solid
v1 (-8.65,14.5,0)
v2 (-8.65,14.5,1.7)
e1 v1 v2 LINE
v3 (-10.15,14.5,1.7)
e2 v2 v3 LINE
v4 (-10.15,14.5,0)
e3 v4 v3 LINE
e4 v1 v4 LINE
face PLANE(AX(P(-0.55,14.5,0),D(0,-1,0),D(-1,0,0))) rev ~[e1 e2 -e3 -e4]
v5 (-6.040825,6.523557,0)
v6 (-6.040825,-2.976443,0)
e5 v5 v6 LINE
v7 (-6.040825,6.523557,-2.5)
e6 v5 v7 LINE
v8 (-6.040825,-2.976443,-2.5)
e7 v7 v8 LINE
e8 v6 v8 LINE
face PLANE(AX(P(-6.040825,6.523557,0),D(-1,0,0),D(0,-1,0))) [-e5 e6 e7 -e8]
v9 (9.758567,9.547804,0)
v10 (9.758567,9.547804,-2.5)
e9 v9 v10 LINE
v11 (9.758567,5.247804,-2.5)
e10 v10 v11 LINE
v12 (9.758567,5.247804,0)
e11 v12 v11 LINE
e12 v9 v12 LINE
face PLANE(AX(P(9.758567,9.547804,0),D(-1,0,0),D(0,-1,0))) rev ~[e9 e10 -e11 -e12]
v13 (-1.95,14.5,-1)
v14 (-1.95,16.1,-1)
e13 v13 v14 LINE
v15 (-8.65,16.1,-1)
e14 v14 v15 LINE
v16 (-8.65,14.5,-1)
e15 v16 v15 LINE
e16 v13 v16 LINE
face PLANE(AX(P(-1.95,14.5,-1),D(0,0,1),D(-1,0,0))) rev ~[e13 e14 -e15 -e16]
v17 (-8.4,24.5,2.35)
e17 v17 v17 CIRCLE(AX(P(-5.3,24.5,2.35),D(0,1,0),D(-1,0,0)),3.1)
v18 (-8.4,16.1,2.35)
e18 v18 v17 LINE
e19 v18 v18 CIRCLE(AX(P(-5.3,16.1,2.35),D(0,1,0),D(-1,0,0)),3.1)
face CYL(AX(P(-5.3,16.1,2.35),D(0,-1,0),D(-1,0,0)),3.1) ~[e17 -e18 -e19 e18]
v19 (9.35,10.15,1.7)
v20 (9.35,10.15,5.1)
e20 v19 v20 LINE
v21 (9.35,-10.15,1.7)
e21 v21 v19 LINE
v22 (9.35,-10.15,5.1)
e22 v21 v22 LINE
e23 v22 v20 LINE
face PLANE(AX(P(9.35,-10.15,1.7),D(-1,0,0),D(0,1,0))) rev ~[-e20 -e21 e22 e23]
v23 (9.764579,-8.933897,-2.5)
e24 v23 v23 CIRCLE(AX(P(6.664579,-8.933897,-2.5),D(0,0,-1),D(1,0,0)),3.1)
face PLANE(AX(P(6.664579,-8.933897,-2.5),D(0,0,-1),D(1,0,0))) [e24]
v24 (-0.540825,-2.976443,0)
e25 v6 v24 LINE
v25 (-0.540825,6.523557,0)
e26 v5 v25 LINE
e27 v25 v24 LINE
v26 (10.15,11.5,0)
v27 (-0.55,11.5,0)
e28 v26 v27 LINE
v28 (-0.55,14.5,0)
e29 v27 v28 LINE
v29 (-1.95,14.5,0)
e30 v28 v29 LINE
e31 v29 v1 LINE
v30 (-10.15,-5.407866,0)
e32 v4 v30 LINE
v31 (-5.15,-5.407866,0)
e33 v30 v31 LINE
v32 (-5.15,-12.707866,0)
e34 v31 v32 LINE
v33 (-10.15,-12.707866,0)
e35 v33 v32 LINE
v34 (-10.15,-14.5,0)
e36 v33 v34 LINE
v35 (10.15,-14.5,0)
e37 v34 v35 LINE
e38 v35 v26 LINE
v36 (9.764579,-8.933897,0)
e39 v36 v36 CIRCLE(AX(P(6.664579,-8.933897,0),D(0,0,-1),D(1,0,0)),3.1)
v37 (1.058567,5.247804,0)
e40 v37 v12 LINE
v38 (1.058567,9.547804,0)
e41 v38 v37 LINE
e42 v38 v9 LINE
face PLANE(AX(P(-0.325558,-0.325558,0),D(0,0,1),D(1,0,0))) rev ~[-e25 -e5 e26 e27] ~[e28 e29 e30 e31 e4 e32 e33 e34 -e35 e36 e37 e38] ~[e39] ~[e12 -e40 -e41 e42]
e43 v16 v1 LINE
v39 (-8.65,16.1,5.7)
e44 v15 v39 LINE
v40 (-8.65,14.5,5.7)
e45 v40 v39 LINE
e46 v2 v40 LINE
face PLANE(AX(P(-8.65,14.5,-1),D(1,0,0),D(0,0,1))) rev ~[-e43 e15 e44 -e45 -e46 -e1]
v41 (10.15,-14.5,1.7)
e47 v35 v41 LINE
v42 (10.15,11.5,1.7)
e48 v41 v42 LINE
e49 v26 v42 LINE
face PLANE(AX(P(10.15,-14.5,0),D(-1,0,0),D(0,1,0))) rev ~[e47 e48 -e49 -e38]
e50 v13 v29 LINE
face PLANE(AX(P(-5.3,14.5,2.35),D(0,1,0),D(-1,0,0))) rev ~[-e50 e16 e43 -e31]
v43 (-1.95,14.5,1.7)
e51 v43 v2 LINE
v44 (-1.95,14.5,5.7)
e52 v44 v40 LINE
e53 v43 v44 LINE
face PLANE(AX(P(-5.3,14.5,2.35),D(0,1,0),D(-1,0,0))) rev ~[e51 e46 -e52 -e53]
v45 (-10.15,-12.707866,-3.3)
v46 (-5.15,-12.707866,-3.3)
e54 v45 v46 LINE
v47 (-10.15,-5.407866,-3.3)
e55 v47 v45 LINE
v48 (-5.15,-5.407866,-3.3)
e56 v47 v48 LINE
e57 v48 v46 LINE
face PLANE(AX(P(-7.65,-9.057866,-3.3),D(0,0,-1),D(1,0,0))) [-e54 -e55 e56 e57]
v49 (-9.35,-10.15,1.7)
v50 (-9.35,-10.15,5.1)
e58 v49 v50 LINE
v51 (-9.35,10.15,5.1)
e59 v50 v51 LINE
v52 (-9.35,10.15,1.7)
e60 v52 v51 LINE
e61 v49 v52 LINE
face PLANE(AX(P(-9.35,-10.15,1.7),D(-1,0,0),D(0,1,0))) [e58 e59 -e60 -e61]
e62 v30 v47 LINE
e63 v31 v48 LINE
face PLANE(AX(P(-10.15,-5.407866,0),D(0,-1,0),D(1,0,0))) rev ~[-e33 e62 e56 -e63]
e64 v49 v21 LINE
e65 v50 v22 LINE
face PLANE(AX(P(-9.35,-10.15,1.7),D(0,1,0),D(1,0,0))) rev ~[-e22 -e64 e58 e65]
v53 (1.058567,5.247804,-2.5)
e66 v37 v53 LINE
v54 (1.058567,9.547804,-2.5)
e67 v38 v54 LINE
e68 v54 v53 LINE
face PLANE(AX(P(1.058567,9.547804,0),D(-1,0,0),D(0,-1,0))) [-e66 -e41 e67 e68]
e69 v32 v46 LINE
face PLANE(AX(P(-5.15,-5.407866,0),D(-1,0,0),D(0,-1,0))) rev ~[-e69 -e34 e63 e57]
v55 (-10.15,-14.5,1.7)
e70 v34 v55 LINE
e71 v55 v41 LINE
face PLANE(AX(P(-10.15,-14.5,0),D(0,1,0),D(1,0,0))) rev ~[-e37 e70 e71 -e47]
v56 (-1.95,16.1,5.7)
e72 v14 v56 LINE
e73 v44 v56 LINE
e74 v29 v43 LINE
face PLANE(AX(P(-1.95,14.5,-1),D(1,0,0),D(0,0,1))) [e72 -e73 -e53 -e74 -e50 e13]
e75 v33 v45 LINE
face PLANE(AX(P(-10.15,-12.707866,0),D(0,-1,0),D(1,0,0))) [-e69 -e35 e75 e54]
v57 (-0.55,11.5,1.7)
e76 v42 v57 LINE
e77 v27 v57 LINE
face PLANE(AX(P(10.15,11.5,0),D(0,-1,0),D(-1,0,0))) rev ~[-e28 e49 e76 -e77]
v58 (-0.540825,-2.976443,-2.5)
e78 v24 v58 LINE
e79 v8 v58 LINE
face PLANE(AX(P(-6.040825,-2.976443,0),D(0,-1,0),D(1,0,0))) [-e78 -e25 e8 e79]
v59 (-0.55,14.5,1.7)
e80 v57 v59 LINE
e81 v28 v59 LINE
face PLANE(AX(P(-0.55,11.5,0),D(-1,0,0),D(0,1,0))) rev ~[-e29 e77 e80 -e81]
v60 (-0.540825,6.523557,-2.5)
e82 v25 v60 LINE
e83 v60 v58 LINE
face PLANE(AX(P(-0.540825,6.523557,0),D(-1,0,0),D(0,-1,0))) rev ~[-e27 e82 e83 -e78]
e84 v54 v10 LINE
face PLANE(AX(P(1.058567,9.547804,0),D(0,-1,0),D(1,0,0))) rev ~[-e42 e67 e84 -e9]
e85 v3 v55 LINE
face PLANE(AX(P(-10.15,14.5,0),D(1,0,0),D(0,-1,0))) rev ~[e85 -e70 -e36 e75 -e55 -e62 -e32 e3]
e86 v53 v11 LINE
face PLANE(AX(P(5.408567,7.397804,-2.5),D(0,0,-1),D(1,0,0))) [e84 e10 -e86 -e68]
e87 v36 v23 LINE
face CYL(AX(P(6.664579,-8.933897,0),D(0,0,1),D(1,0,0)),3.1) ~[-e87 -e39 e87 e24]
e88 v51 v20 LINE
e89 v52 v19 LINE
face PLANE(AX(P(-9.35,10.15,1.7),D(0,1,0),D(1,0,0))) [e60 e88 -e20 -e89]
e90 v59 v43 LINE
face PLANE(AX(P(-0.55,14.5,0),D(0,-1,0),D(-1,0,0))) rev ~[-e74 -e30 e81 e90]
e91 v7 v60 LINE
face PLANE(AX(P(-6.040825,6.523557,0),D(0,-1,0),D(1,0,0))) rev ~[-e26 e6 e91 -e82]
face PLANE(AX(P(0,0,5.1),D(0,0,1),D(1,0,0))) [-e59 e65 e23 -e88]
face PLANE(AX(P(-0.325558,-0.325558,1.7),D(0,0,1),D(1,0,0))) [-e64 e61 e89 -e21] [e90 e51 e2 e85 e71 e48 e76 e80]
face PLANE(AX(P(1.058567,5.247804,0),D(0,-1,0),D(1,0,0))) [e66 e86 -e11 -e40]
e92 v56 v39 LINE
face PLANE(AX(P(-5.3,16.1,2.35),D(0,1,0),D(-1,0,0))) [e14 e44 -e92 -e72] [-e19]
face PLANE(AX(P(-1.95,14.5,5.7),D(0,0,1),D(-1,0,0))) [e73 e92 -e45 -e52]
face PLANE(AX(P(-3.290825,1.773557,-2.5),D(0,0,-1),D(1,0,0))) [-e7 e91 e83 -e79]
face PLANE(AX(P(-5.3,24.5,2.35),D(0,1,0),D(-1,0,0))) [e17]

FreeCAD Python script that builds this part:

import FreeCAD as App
import Part
import Sketcher

V = App.Vector
Q = App.Units.Quantity

doc = App.newDocument("Part")
params = doc.addObject("Spreadsheet::Sheet", "Params")
for row, (alias, value) in enumerate([
    ("sketch1_height", "26 mm"),
    ("sketch1_height2", "3 mm"),
    ("sketch1_width", "20.3 mm"),
    ("sketch1_width2", "10.7 mm"),
    ("pad1_length", "1.7 mm"),
    ("sketch2_width", "18.7 mm"),
    ("sketch2_height", "20.3 mm"),
    ("pad2_length", "3.4 mm"),
    ("sketch3_width", "5 mm"),
    ("sketch3_height", "7.3 mm"),
    ("pad3_length", "3.3 mm"),
    ("sketch4_diameter", "6.2 mm"),
    ("sketch4_width", "5.5 mm"),
    ("sketch4_width2", "8.7 mm"),
    ("sketch4_height", "9.5 mm"),
    ("sketch4_height2", "4.3 mm"),
    ("pad4_length", "2.5 mm"),
    ("sketch5_width", "6.7 mm"),
    ("pad5_length", "1.6 mm"),
    ("sketch6_diameter", "6.2 mm"),
    ("pad6_length", "8.4 mm"),
], start=1):
    params.set(f"A{row}", alias)
    params.set(f"B{row}", "=" + value)
    params.setAlias(f"B{row}", alias)

body = doc.addObject("PartDesign::Body", "Body")

sketch1 = body.newObject("Sketcher::SketchObject", "Sketch")
sketch1.AttachmentSupport = (doc.getObject("XY_Plane"), [""])
sketch1.MapMode = "FlatFace"
sketch1.addGeometry(Part.LineSegment(V(-10.2, -14.5, 0), V(10.2, -14.5, 0)), False)
sketch1.addGeometry(Part.LineSegment(V(10.2, -14.5, 0), V(10.2, 11.5, 0)), False)
sketch1.addGeometry(Part.LineSegment(V(10.2, 11.5, 0), V(-0.6, 11.5, 0)), False)
sketch1.addGeometry(Part.LineSegment(V(-0.6, 11.5, 0), V(-0.6, 14.5, 0)), False)
sketch1.addGeometry(Part.LineSegment(V(-0.6, 14.5, 0), V(-10.2, 14.5, 0)), False)
sketch1.addGeometry(Part.LineSegment(V(-10.2, 14.5, 0), V(-10.2, -14.5, 0)), False)
sketch1.addConstraint(Sketcher.Constraint("Coincident", 0, 2, 1, 1))
sketch1.addConstraint(Sketcher.Constraint("Coincident", 1, 2, 2, 1))
sketch1.addConstraint(Sketcher.Constraint("Coincident", 2, 2, 3, 1))
sketch1.addConstraint(Sketcher.Constraint("Coincident", 3, 2, 4, 1))
sketch1.addConstraint(Sketcher.Constraint("Coincident", 4, 2, 5, 1))
sketch1.addConstraint(Sketcher.Constraint("Coincident", 5, 2, 0, 1))
sketch1.addConstraint(Sketcher.Constraint("Horizontal", 0))
sketch1.addConstraint(Sketcher.Constraint("Vertical", 1))
sketch1.addConstraint(Sketcher.Constraint("Horizontal", 2))
sketch1.addConstraint(Sketcher.Constraint("Vertical", 3))
sketch1.addConstraint(Sketcher.Constraint("Horizontal", 4))
sketch1.addConstraint(Sketcher.Constraint("Vertical", 5))
sketch1.addConstraint(Sketcher.Constraint("Symmetric", 0, 2, 4, 2, -1, 1))
sketch1.addConstraint(Sketcher.Constraint("DistanceY", 1, 1, 1, 2, Q("26 mm")))
sketch1.addConstraint(Sketcher.Constraint("DistanceY", 3, 1, 3, 2, Q("3 mm")))
sketch1.addConstraint(Sketcher.Constraint("DistanceX", 0, 1, 0, 2, Q("20.3 mm")))
sketch1.addConstraint(Sketcher.Constraint("DistanceX", 2, 2, 2, 1, Q("10.7 mm")))
sketch1.setExpression("Constraints[13]", "Params.sketch1_height")
sketch1.setExpression("Constraints[14]", "Params.sketch1_height2")
sketch1.setExpression("Constraints[15]", "Params.sketch1_width")
sketch1.setExpression("Constraints[16]", "Params.sketch1_width2")
pad1 = body.newObject("PartDesign::Pad", "Pad")
pad1.Profile = sketch1
pad1.setExpression("Length", "Params.pad1_length")

sketch2 = body.newObject("Sketcher::SketchObject", "Sketch001")
sketch2.AttachmentSupport = (doc.getObject("XY_Plane"), [""])
sketch2.MapMode = "FlatFace"
sketch2.AttachmentOffset = App.Placement(V(0, 0, 1.7), App.Rotation())
sketch2.addGeometry(Part.LineSegment(V(-9, 10, 0), V(-9, -10, 0)), False)
sketch2.addGeometry(Part.LineSegment(V(-9, -10, 0), V(9, -10, 0)), False)
sketch2.addGeometry(Part.LineSegment(V(9, -10, 0), V(9, 10, 0)), False)
sketch2.addGeometry(Part.LineSegment(V(9, 10, 0), V(-9, 10, 0)), False)
sketch2.addConstraint(Sketcher.Constraint("Coincident", 0, 2, 1, 1))
sketch2.addConstraint(Sketcher.Constraint("Coincident", 1, 2, 2, 1))
sketch2.addConstraint(Sketcher.Constraint("Coincident", 2, 2, 3, 1))
sketch2.addConstraint(Sketcher.Constraint("Coincident", 3, 2, 0, 1))
sketch2.addConstraint(Sketcher.Constraint("Vertical", 0))
sketch2.addConstraint(Sketcher.Constraint("Horizontal", 1))
sketch2.addConstraint(Sketcher.Constraint("Vertical", 2))
sketch2.addConstraint(Sketcher.Constraint("Horizontal", 3))
sketch2.addConstraint(Sketcher.Constraint("Symmetric", 0, 2, 2, 2, -1, 1))
sketch2.addConstraint(Sketcher.Constraint("DistanceX", 1, 1, 1, 2, Q("18.7 mm")))
sketch2.addConstraint(Sketcher.Constraint("DistanceY", 0, 2, 0, 1, Q("20.3 mm")))
sketch2.setExpression("Constraints[9]", "Params.sketch2_width")
sketch2.setExpression("Constraints[10]", "Params.sketch2_height")
pad2 = body.newObject("PartDesign::Pad", "Pad001")
pad2.Profile = sketch2
pad2.setExpression("Length", "Params.pad2_length")

sketch3 = body.newObject("Sketcher::SketchObject", "Sketch002")
sketch3.AttachmentSupport = (doc.getObject("XY_Plane"), [""])
sketch3.MapMode = "FlatFace"
sketch3.addGeometry(Part.LineSegment(V(-10, -13, 0), V(-10, -5, 0)), False)
sketch3.addGeometry(Part.LineSegment(V(-10, -5, 0), V(-5, -5, 0)), False)
sketch3.addGeometry(Part.LineSegment(V(-5, -5, 0), V(-5, -13, 0)), False)
sketch3.addGeometry(Part.LineSegment(V(-5, -13, 0), V(-10, -13, 0)), False)
sketch3.addConstraint(Sketcher.Constraint("Coincident", 0, 2, 1, 1))
sketch3.addConstraint(Sketcher.Constraint("Coincident", 1, 2, 2, 1))
sketch3.addConstraint(Sketcher.Constraint("Coincident", 2, 2, 3, 1))
sketch3.addConstraint(Sketcher.Constraint("Coincident", 3, 2, 0, 1))
sketch3.addConstraint(Sketcher.Constraint("Vertical", 0))
sketch3.addConstraint(Sketcher.Constraint("Horizontal", 1))
sketch3.addConstraint(Sketcher.Constraint("Vertical", 2))
sketch3.addConstraint(Sketcher.Constraint("Horizontal", 3))
sketch3.addConstraint(Sketcher.Constraint("DistanceX", 1, 1, 1, 2, Q("5 mm")))
sketch3.addConstraint(Sketcher.Constraint("DistanceY", 0, 1, 0, 2, Q("7.3 mm")))
sketch3.addConstraint(Sketcher.Constraint("DistanceX", 0, 2, -1, 1, Q("10.15 mm")))
sketch3.addConstraint(Sketcher.Constraint("DistanceY", 0, 2, -1, 1, Q("5.407866 mm")))
sketch3.setExpression("Constraints[8]", "Params.sketch3_width")
sketch3.setExpression("Constraints[9]", "Params.sketch3_height")
pad3 = body.newObject("PartDesign::Pad", "Pad002")
pad3.Profile = sketch3
pad3.setExpression("Length", "Params.pad3_length")
pad3.Reversed = True

sketch4 = body.newObject("Sketcher::SketchObject", "Sketch003")
sketch4.AttachmentSupport = (doc.getObject("XY_Plane"), [""])
sketch4.MapMode = "FlatFace"
sketch4.addGeometry(Part.LineSegment(V(-6, -3, 0), V(-6, 6.5, 0)), False)
sketch4.addGeometry(Part.LineSegment(V(-6, 6.5, 0), V(-0.5, 6.5, 0)), False)
sketch4.addGeometry(Part.LineSegment(V(-0.5, 6.5, 0), V(-0.5, -3, 0)), False)
sketch4.addGeometry(Part.LineSegment(V(-0.5, -3, 0), V(-6, -3, 0)), False)
sketch4.addGeometry(Part.LineSegment(V(1.1, 5.2, 0), V(1.1, 9.5, 0)), False)
sketch4.addGeometry(Part.LineSegment(V(1.1, 9.5, 0), V(9.8, 9.5, 0)), False)
sketch4.addGeometry(Part.LineSegment(V(9.8, 9.5, 0), V(9.8, 5.2, 0)), False)
sketch4.addGeometry(Part.LineSegment(V(9.8, 5.2, 0), V(1.1, 5.2, 0)), False)
sketch4.addGeometry(Part.Circle(V(6.7, -8.9, 0), V(0, 0, 1), 3.1), False)
sketch4.addConstraint(Sketcher.Constraint("Coincident", 0, 2, 1, 1))
sketch4.addConstraint(Sketcher.Constraint("Coincident", 1, 2, 2, 1))
sketch4.addConstraint(Sketcher.Constraint("Coincident", 2, 2, 3, 1))
sketch4.addConstraint(Sketcher.Constraint("Coincident", 3, 2, 0, 1))
sketch4.addConstraint(Sketcher.Constraint("Coincident", 4, 2, 5, 1))
sketch4.addConstraint(Sketcher.Constraint("Coincident", 5, 2, 6, 1))
sketch4.addConstraint(Sketcher.Constraint("Coincident", 6, 2, 7, 1))
sketch4.addConstraint(Sketcher.Constraint("Coincident", 7, 2, 4, 1))
sketch4.addConstraint(Sketcher.Constraint("Vertical", 0))
sketch4.addConstraint(Sketcher.Constraint("Horizontal", 1))
sketch4.addConstraint(Sketcher.Constraint("Vertical", 2))
sketch4.addConstraint(Sketcher.Constraint("Horizontal", 3))
sketch4.addConstraint(Sketcher.Constraint("Vertical", 4))
sketch4.addConstraint(Sketcher.Constraint("Horizontal", 5))
sketch4.addConstraint(Sketcher.Constraint("Vertical", 6))
sketch4.addConstraint(Sketcher.Constraint("Horizontal", 7))
sketch4.addConstraint(Sketcher.Constraint("Diameter", 8, Q("6.2 mm")))
sketch4.addConstraint(Sketcher.Constraint("DistanceX", 1, 1, 1, 2, Q("5.5 mm")))
sketch4.addConstraint(Sketcher.Constraint("DistanceX", 5, 1, 5, 2, Q("8.7 mm")))
sketch4.addConstraint(Sketcher.Constraint("DistanceY", 0, 1, 0, 2, Q("9.5 mm")))
sketch4.addConstraint(Sketcher.Constraint("DistanceY", 4, 1, 4, 2, Q("4.3 mm")))
sketch4.addConstraint(Sketcher.Constraint("DistanceY", 8, 3, 4, 2, Q("18.481701 mm")))
sketch4.addConstraint(Sketcher.Constraint("DistanceX", -1, 1, 8, 3, Q("6.664579 mm")))
sketch4.addConstraint(Sketcher.Constraint("DistanceX", 1, 2, 4, 2, Q("1.599392 mm")))
sketch4.addConstraint(Sketcher.Constraint("DistanceX", 4, 2, 8, 3, Q("5.606012 mm")))
sketch4.addConstraint(Sketcher.Constraint("DistanceY", 8, 3, -1, 1, Q("8.933897 mm")))
sketch4.addConstraint(Sketcher.Constraint("DistanceY", -1, 1, 0, 2, Q("6.523557 mm")))
sketch4.setExpression("Constraints[16]", "Params.sketch4_diameter")
sketch4.setExpression("Constraints[17]", "Params.sketch4_width")
sketch4.setExpression("Constraints[18]", "Params.sketch4_width2")
sketch4.setExpression("Constraints[19]", "Params.sketch4_height")
sketch4.setExpression("Constraints[20]", "Params.sketch4_height2")
pad4 = body.newObject("PartDesign::Pad", "Pad003")
pad4.Profile = sketch4
pad4.setExpression("Length", "Params.pad4_length")
pad4.Reversed = True

sketch5 = body.newObject("Sketcher::SketchObject", "Sketch004")
sketch5.AttachmentSupport = (doc.getObject("XZ_Plane"), [""])
sketch5.MapMode = "FlatFace"
sketch5.AttachmentOffset = App.Placement(V(0, 0, -14.5), App.Rotation())
sketch5.addGeometry(Part.LineSegment(V(-2, 6, 0), V(-2, -1, 0)), False)
sketch5.addGeometry(Part.LineSegment(V(-2, -1, 0), V(-9, -1, 0)), False)
sketch5.addGeometry(Part.LineSegment(V(-9, -1, 0), V(-9, 6, 0)), False)
sketch5.addGeometry(Part.LineSegment(V(-9, 6, 0), V(-2, 6, 0)), False)
sketch5.addConstraint(Sketcher.Constraint("Coincident", 0, 2, 1, 1))
sketch5.addConstraint(Sketcher.Constraint("Coincident", 1, 2, 2, 1))
sketch5.addConstraint(Sketcher.Constraint("Coincident", 2, 2, 3, 1))
sketch5.addConstraint(Sketcher.Constraint("Coincident", 3, 2, 0, 1))
sketch5.addConstraint(Sketcher.Constraint("Vertical", 0))
sketch5.addConstraint(Sketcher.Constraint("Horizontal", 1))
sketch5.addConstraint(Sketcher.Constraint("Vertical", 2))
sketch5.addConstraint(Sketcher.Constraint("Horizontal", 3))
sketch5.addConstraint(Sketcher.Constraint("Equal", 3, 0))
sketch5.addConstraint(Sketcher.Constraint("DistanceX", 1, 2, 1, 1, Q("6.7 mm")))
sketch5.addConstraint(Sketcher.Constraint("DistanceY", 0, 2, -1, 1, Q("1 mm")))
sketch5.addConstraint(Sketcher.Constraint("DistanceX", 0, 2, -1, 1, Q("1.95 mm")))
sketch5.setExpression("Constraints[9]", "Params.sketch5_width")
pad5 = body.newObject("PartDesign::Pad", "Pad004")
pad5.Profile = sketch5
pad5.setExpression("Length", "Params.pad5_length")
pad5.Reversed = True

sketch6 = body.newObject("Sketcher::SketchObject", "Sketch005")
sketch6.AttachmentSupport = (doc.getObject("XZ_Plane"), [""])
sketch6.MapMode = "FlatFace"
sketch6.AttachmentOffset = App.Placement(V(0, 0, -16.1), App.Rotation())
sketch6.addGeometry(Part.Circle(V(-5.3, 2.4, 0), V(0, 0, 1), 3.1), False)
sketch6.addConstraint(Sketcher.Constraint("Diameter", 0, Q("6.2 mm")))
sketch6.addConstraint(Sketcher.Constraint("DistanceX", 0, 3, -1, 1, Q("5.3 mm")))
sketch6.addConstraint(Sketcher.Constraint("DistanceY", -1, 1, 0, 3, Q("2.35 mm")))
sketch6.setExpression("Constraints[0]", "Params.sketch6_diameter")
pad6 = body.newObject("PartDesign::Pad", "Pad005")
pad6.Profile = sketch6
pad6.setExpression("Length", "Params.pad6_length")
pad6.Reversed = True

doc.recompute()
